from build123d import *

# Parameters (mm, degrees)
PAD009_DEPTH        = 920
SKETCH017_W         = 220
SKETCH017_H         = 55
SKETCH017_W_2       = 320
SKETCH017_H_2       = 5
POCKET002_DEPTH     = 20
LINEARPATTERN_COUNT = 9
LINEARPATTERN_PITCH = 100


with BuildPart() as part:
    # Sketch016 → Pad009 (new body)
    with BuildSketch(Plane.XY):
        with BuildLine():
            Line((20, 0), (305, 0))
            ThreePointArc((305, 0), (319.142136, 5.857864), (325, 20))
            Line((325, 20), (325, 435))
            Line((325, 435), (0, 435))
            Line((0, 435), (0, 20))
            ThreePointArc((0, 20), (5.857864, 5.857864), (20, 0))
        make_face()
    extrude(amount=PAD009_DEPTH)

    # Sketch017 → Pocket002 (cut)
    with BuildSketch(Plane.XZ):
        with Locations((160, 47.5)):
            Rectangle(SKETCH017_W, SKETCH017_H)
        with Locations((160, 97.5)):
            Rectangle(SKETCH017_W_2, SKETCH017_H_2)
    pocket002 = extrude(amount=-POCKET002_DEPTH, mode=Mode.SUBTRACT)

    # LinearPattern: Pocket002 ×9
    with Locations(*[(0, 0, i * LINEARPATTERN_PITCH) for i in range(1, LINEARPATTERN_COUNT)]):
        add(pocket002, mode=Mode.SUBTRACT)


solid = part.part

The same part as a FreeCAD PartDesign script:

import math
import FreeCAD as App
import Part
import Sketcher

V = App.Vector
Q = App.Units.Quantity

doc = App.newDocument("Part")
body = doc.addObject("PartDesign::Body", "Body")

# Sketch on XY plane
sketch1 = body.newObject("Sketcher::SketchObject", "Sketch")
sketch1.AttachmentSupport = (doc.getObject("XY_Plane"), [""])
sketch1.MapMode = "FlatFace"
sketch1.addGeometry(Part.LineSegment(V(20, 0, 0), V(305, 0, 0)), False)
sketch1.addGeometry(Part.ArcOfCircle(Part.Circle(V(305.000001, 19.999999, 0), V(0, 0, 1), 19.999999), math.radians(-90.000004), math.radians(0.000004)), False)
sketch1.addGeometry(Part.LineSegment(V(325, 20, 0), V(325, 435, 0)), False)
sketch1.addGeometry(Part.LineSegment(V(325, 435, 0), V(0, 435, 0)), False)
sketch1.addGeometry(Part.LineSegment(V(0, 435, 0), V(0, 20, 0)), False)
sketch1.addGeometry(Part.ArcOfCircle(Part.Circle(V(19.999999, 19.999999, 0), V(0, 0, 1), 19.999999), math.radians(179.999996), math.radians(270.000004)), False)
sketch1.addConstraint(Sketcher.Constraint("Tangent", 0, 2, 1, 1))
sketch1.addConstraint(Sketcher.Constraint("Tangent", 1, 2, 2, 1))
sketch1.addConstraint(Sketcher.Constraint("Coincident", 2, 2, 3, 1))
sketch1.addConstraint(Sketcher.Constraint("Coincident", 3, 2, 4, 1))
sketch1.addConstraint(Sketcher.Constraint("Tangent", 4, 2, 5, 1))
sketch1.addConstraint(Sketcher.Constraint("Tangent", 5, 2, 0, 1))
sketch1.addConstraint(Sketcher.Constraint("Horizontal", 0))
sketch1.addConstraint(Sketcher.Constraint("Vertical", 2))
sketch1.addConstraint(Sketcher.Constraint("Horizontal", 3))
sketch1.addConstraint(Sketcher.Constraint("Vertical", 4))
sketch1.addConstraint(Sketcher.Constraint("Equal", 1, 5))
sketch1.addConstraint(Sketcher.Constraint("PointOnObject", 0, 2, -1))
sketch1.addConstraint(Sketcher.Constraint("PointOnObject", 3, 2, -2))
sketch1.addConstraint(Sketcher.Constraint("Radius", 1, Q("19.999999 mm")))
sketch1.addConstraint(Sketcher.Constraint("DistanceX", 0, 1, 0, 2, Q("285 mm")))
sketch1.addConstraint(Sketcher.Constraint("DistanceY", 2, 1, 2, 2, Q("415 mm")))
pad1 = body.newObject("PartDesign::Pad", "Pad")
pad1.Profile = sketch1
pad1.Length = 920

# Sketch on XZ plane
sketch2 = body.newObject("Sketcher::SketchObject", "Sketch001")
sketch2.AttachmentSupport = (doc.getObject("XZ_Plane"), [""])
sketch2.MapMode = "FlatFace"
sketch2.addGeometry(Part.LineSegment(V(50, 75, 0), V(50, 20, 0)), False)
sketch2.addGeometry(Part.LineSegment(V(50, 20, 0), V(270, 20, 0)), False)
sketch2.addGeometry(Part.LineSegment(V(270, 20, 0), V(270, 75, 0)), False)
sketch2.addGeometry(Part.LineSegment(V(270, 75, 0), V(50, 75, 0)), False)
sketch2.addGeometry(Part.LineSegment(V(0, 100, 0), V(0, 95, 0)), False)
sketch2.addGeometry(Part.LineSegment(V(0, 95, 0), V(320, 95, 0)), False)
sketch2.addGeometry(Part.LineSegment(V(320, 95, 0), V(320, 100, 0)), False)
sketch2.addGeometry(Part.LineSegment(V(320, 100, 0), V(0, 100, 0)), False)
sketch2.addConstraint(Sketcher.Constraint("Coincident", 0, 2, 1, 1))
sketch2.addConstraint(Sketcher.Constraint("Coincident", 1, 2, 2, 1))
sketch2.addConstraint(Sketcher.Constraint("Coincident", 2, 2, 3, 1))
sketch2.addConstraint(Sketcher.Constraint("Coincident", 3, 2, 0, 1))
sketch2.addConstraint(Sketcher.Constraint("Coincident", 4, 2, 5, 1))
sketch2.addConstraint(Sketcher.Constraint("Coincident", 5, 2, 6, 1))
sketch2.addConstraint(Sketcher.Constraint("Coincident", 6, 2, 7, 1))
sketch2.addConstraint(Sketcher.Constraint("Coincident", 7, 2, 4, 1))
sketch2.addConstraint(Sketcher.Constraint("Vertical", 0))
sketch2.addConstraint(Sketcher.Constraint("Horizontal", 1))
sketch2.addConstraint(Sketcher.Constraint("Vertical", 2))
sketch2.addConstraint(Sketcher.Constraint("Horizontal", 3))
sketch2.addConstraint(Sketcher.Constraint("Vertical", 4))
sketch2.addConstraint(Sketcher.Constraint("Horizontal", 5))
sketch2.addConstraint(Sketcher.Constraint("Vertical", 6))
sketch2.addConstraint(Sketcher.Constraint("Horizontal", 7))
sketch2.addConstraint(Sketcher.Constraint("PointOnObject", 4, 2, -2))
sketch2.addConstraint(Sketcher.Constraint("DistanceX", 1, 1, 1, 2, Q("220 mm")))
sketch2.addConstraint(Sketcher.Constraint("DistanceX", 5, 1, 5, 2, Q("320 mm")))
sketch2.addConstraint(Sketcher.Constraint("DistanceY", 0, 2, 0, 1, Q("55 mm")))
sketch2.addConstraint(Sketcher.Constraint("DistanceY", 4, 2, 4, 1, Q("5 mm")))
sketch2.addConstraint(Sketcher.Constraint("DistanceX", -1, 1, 0, 2, Q("50 mm")))
sketch2.addConstraint(Sketcher.Constraint("DistanceY", -1, 1, 0, 2, Q("20 mm")))
sketch2.addConstraint(Sketcher.Constraint("DistanceY", -1, 1, 4, 2, Q("95 mm")))
pocket1 = body.newObject("PartDesign::Pocket", "Pocket")
pocket1.Profile = sketch2
pocket1.Length = 20
doc.recompute()

linearpattern = body.newObject("PartDesign::LinearPattern", "LinearPattern")
linearpattern.Originals = [pocket1]
linearpattern.Direction = (doc.getObject("Z_Axis"), [""])
linearpattern.Mode = "offset"
linearpattern.Offset = 100
linearpattern.Occurrences = 9
body.Tip = linearpattern

doc.recompute()
